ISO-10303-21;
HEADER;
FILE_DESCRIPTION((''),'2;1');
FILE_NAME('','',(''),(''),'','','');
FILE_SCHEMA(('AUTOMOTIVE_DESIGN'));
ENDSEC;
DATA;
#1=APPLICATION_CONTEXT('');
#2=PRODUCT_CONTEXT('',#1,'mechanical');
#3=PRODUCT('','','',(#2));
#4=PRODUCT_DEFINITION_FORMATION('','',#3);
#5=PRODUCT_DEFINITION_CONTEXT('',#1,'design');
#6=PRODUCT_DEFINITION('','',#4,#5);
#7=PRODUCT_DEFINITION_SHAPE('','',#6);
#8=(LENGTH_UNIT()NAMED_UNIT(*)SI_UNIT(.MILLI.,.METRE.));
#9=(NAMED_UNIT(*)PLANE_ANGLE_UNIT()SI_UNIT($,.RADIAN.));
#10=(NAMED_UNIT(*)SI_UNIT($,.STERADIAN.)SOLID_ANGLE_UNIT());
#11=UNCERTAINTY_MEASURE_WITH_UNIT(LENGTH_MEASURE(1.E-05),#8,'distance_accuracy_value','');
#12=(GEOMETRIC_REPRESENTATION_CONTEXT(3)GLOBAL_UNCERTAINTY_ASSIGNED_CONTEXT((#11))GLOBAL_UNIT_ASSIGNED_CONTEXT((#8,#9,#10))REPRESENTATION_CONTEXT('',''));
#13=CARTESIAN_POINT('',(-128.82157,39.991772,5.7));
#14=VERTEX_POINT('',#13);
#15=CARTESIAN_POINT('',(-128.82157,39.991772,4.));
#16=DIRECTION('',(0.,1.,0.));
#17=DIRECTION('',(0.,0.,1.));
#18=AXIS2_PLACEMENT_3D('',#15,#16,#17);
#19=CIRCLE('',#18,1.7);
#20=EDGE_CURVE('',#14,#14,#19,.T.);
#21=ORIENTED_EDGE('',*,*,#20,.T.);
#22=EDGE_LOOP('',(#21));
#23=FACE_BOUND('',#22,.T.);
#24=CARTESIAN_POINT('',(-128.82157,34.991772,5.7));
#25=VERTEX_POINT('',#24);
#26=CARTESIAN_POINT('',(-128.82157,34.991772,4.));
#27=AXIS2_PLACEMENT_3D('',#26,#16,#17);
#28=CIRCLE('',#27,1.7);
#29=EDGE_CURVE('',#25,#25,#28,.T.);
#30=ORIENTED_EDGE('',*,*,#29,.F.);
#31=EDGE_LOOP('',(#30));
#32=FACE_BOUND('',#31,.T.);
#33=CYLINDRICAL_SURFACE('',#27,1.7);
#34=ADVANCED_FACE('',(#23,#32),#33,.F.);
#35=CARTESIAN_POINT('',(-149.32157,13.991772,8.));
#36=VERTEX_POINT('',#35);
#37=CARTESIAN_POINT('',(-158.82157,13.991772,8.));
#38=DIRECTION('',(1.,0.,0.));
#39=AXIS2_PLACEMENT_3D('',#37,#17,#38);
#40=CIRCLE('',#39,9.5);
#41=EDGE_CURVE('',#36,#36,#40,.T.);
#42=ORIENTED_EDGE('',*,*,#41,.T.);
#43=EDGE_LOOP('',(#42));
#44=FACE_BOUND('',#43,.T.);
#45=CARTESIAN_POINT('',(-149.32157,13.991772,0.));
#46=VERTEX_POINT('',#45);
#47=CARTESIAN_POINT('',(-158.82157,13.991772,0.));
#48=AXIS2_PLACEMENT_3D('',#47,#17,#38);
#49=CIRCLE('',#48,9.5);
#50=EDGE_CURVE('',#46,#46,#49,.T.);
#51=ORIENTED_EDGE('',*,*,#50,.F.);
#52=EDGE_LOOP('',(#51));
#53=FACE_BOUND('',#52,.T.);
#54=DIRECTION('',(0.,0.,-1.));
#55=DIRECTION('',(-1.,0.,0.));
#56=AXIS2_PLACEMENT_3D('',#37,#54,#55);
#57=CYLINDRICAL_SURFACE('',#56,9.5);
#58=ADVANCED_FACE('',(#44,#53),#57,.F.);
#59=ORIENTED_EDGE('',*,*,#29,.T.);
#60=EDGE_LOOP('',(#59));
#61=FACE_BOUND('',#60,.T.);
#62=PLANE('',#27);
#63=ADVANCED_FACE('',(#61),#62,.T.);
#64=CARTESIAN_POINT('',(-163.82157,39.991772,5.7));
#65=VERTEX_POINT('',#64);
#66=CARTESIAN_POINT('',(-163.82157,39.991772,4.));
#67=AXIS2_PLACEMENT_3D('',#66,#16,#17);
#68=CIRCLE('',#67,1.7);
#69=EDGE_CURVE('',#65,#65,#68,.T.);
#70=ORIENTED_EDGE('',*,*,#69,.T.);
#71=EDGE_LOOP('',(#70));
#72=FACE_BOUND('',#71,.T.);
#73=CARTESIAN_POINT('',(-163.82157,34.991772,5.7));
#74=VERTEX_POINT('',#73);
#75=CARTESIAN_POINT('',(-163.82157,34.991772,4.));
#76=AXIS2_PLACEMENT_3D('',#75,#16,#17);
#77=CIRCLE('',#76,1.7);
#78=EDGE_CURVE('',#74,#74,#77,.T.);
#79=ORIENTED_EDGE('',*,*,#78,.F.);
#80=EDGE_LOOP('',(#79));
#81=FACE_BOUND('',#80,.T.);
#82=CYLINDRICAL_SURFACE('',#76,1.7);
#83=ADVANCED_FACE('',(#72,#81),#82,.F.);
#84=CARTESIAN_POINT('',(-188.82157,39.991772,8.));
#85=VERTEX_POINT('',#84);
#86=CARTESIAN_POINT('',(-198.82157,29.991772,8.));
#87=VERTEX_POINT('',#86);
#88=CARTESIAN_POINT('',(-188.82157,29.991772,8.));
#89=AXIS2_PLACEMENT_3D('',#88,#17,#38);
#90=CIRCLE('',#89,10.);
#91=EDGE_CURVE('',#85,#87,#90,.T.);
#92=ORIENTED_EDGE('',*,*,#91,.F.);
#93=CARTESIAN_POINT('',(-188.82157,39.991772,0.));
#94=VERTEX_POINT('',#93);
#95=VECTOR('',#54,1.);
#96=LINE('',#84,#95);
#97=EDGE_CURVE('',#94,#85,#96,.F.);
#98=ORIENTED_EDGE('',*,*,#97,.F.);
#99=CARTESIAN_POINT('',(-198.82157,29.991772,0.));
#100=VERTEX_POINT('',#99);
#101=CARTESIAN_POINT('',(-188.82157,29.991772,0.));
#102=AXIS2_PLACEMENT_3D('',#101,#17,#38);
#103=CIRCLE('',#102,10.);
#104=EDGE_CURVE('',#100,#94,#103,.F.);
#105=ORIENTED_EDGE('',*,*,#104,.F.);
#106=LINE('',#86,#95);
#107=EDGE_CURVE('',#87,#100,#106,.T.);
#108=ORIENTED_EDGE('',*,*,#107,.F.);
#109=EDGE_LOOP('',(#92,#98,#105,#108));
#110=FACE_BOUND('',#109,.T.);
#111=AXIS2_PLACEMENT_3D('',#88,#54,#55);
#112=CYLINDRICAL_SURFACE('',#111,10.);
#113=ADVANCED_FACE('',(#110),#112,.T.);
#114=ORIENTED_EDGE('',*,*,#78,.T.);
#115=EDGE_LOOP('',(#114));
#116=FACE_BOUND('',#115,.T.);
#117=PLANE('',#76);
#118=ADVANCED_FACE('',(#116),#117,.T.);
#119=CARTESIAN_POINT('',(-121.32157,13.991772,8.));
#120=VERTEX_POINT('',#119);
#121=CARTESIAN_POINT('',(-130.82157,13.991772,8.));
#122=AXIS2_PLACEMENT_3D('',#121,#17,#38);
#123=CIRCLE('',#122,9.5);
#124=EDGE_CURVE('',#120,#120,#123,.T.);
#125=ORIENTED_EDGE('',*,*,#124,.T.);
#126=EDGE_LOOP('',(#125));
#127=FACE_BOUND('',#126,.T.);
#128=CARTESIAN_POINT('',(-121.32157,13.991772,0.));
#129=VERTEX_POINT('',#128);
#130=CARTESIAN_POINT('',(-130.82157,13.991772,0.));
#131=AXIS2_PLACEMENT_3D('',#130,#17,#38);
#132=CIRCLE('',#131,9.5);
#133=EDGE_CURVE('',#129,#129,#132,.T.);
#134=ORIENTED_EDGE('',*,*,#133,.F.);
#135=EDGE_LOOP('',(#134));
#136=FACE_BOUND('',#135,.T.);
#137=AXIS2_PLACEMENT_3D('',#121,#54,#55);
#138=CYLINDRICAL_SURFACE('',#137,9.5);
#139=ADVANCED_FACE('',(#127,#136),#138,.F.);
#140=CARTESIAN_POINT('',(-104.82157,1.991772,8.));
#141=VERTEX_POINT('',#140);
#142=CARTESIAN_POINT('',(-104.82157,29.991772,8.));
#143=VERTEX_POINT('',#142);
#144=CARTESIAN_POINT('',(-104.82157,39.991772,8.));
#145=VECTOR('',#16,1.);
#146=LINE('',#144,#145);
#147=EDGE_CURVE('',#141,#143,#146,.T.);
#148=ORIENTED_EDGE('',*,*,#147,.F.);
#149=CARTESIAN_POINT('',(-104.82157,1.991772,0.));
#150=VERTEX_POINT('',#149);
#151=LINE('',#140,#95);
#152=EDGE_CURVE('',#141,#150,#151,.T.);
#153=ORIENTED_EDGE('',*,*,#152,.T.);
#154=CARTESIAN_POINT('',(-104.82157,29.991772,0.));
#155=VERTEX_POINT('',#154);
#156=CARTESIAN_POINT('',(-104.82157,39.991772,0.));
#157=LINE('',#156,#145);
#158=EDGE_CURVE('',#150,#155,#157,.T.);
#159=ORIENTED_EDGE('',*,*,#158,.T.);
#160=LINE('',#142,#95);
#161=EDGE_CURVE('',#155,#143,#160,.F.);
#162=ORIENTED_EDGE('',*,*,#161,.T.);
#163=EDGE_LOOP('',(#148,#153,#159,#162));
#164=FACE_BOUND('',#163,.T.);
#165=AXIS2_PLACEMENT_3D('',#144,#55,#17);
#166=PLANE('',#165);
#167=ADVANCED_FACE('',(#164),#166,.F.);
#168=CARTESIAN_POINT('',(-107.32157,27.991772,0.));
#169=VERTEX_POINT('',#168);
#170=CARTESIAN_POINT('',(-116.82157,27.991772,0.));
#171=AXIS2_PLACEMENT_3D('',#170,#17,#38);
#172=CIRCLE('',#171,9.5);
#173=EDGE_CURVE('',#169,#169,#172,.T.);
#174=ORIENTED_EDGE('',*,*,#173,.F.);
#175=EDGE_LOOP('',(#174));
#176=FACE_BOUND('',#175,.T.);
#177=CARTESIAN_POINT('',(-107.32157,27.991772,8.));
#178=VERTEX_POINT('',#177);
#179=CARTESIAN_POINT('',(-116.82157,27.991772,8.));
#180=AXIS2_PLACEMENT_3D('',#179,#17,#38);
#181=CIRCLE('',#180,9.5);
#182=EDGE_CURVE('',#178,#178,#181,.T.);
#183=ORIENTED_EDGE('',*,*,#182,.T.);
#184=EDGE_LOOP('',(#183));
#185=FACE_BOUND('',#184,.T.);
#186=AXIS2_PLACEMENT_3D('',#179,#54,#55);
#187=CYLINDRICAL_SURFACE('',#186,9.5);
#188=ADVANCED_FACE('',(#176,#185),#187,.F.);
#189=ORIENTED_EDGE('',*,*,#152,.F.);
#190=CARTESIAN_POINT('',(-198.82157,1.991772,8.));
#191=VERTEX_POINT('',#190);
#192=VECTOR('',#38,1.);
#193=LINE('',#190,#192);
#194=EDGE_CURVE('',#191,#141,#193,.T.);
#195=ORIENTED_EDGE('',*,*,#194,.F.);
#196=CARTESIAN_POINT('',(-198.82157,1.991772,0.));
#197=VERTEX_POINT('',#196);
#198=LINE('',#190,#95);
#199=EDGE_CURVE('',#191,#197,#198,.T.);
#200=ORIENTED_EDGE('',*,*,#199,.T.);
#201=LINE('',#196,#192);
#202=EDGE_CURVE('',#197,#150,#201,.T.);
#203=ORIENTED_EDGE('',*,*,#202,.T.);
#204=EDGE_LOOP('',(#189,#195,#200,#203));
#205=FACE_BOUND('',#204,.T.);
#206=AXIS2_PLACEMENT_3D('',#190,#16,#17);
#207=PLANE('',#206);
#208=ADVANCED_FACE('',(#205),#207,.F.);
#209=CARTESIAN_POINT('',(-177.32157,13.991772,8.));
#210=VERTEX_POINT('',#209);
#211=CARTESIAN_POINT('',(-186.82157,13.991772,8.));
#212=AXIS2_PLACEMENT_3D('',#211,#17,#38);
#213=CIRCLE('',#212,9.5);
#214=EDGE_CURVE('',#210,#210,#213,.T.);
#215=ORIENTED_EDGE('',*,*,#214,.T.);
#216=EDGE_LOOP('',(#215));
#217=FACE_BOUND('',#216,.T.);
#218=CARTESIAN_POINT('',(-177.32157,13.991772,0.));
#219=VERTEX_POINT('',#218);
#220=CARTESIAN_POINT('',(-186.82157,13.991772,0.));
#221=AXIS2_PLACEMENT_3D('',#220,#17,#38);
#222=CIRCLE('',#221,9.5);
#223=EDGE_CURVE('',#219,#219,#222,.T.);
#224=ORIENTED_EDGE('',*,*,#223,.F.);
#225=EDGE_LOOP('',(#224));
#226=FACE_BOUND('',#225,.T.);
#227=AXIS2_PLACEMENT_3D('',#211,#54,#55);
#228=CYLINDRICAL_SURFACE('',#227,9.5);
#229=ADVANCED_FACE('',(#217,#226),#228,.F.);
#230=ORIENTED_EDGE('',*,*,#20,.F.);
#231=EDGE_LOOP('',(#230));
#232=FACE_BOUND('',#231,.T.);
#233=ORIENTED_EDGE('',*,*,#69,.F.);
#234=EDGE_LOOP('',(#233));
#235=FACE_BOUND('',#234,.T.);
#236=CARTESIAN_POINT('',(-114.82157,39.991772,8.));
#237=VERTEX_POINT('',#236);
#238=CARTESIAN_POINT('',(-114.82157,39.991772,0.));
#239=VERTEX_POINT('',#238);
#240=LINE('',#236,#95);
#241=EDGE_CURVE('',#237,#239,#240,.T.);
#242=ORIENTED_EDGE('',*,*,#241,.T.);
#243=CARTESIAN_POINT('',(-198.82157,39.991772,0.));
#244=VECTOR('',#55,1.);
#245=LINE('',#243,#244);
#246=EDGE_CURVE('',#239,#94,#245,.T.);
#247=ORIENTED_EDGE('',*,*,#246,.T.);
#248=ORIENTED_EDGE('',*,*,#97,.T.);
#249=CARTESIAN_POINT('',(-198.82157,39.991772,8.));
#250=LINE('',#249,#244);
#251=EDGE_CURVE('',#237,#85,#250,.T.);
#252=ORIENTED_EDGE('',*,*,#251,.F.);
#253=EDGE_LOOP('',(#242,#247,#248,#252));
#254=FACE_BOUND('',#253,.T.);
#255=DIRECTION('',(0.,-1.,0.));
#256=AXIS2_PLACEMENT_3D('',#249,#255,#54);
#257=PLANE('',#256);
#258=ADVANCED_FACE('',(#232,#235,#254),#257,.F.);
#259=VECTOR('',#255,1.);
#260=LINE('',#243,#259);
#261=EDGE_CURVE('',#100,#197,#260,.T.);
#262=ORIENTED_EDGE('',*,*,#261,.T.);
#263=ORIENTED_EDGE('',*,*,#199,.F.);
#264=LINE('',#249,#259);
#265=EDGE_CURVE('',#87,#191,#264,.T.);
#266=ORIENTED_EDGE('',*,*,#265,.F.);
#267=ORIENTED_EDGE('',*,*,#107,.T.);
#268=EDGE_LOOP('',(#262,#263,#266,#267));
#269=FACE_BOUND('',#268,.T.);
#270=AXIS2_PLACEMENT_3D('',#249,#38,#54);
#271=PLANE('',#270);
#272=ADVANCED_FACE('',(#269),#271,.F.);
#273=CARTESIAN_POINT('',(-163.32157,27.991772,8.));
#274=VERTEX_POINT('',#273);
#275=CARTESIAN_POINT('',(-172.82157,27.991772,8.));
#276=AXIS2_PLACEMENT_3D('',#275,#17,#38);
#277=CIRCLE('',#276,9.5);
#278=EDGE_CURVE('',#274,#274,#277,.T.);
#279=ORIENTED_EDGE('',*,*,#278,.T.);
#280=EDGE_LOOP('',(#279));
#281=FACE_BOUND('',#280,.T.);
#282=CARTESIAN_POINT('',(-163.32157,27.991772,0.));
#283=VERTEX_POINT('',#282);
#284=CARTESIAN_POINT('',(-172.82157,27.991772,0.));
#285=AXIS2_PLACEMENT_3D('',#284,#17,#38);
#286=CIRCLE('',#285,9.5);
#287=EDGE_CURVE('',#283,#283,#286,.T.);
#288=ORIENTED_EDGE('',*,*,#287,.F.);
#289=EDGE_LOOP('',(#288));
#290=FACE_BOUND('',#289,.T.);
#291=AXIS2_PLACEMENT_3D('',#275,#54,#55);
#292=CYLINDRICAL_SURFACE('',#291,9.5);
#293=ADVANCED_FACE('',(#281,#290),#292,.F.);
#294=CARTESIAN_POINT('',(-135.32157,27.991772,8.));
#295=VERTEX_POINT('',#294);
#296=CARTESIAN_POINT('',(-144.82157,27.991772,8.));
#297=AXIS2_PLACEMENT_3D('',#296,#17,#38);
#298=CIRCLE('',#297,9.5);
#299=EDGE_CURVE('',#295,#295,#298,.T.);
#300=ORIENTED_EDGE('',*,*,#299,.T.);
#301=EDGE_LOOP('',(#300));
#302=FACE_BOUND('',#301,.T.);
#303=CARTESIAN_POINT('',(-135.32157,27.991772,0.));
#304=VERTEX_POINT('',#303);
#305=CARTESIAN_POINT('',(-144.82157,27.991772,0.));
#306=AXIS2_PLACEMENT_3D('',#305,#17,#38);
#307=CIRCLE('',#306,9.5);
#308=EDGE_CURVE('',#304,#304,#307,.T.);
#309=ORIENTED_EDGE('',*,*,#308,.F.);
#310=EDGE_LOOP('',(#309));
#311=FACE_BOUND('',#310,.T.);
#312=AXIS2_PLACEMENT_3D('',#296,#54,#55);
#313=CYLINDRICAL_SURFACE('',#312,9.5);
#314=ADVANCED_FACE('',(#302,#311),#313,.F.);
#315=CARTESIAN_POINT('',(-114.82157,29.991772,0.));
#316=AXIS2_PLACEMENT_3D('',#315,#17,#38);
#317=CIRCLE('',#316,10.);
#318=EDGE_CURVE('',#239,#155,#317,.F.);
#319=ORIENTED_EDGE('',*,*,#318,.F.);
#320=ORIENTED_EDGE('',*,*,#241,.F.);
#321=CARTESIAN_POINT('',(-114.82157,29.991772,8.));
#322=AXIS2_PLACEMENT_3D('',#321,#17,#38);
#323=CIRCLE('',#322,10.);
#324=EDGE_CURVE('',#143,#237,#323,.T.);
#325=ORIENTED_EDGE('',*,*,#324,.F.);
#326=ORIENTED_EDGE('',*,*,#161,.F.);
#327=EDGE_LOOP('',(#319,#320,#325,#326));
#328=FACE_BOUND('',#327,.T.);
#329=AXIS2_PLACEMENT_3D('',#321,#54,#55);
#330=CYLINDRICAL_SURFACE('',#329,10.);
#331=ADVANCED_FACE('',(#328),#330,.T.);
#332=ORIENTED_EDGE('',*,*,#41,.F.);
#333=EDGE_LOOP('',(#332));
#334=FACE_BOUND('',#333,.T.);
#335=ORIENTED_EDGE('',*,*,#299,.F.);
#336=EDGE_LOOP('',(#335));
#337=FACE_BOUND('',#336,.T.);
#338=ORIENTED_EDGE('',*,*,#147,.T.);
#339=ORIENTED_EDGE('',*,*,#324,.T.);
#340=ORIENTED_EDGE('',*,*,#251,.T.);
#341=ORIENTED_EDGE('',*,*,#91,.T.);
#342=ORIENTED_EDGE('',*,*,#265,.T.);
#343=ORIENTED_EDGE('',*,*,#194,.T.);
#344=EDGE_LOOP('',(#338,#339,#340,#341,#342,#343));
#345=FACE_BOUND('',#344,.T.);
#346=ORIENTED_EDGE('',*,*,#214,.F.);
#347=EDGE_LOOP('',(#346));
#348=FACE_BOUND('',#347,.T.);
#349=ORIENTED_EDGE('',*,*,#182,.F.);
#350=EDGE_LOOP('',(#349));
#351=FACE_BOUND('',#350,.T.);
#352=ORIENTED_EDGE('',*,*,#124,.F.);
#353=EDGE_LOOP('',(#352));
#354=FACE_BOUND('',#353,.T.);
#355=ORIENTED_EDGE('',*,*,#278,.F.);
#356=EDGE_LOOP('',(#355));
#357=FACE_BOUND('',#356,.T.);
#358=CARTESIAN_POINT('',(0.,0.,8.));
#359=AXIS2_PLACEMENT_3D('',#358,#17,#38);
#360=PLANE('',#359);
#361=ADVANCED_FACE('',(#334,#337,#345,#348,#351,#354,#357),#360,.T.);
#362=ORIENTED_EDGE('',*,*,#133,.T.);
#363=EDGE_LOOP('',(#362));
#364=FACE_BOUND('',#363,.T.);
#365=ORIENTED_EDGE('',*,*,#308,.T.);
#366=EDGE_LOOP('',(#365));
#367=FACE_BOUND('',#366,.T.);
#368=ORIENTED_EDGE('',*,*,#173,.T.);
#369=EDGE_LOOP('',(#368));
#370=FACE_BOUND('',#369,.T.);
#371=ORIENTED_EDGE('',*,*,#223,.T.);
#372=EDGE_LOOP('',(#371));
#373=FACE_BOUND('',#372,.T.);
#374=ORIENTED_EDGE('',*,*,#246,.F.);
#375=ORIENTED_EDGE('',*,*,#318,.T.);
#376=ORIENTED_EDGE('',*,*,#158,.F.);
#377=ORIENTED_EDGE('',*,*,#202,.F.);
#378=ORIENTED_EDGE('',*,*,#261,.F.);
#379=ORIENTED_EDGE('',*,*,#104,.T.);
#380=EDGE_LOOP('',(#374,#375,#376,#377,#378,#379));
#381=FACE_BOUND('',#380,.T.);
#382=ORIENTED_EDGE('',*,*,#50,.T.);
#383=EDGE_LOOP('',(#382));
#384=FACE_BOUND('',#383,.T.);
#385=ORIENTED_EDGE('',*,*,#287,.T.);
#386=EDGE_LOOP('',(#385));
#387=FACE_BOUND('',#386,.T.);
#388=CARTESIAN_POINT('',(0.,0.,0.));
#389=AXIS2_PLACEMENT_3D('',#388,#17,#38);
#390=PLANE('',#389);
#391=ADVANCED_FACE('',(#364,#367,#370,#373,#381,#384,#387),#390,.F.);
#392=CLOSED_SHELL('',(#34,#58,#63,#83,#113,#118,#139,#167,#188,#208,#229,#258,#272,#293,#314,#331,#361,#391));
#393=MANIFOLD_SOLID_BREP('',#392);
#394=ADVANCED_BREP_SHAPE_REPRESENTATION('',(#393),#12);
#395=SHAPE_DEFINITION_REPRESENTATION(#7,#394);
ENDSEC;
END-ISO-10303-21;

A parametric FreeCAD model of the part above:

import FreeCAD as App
import Part
import Sketcher

V = App.Vector
Q = App.Units.Quantity


def edges_at(feature, points):
    """Names of the edges that pass closest to the given points."""
    edges = feature.Shape.Edges
    near = lambda p: min(range(len(edges)), key=lambda i: edges[i].distToShape(Part.Vertex(*p))[0])
    return sorted({f"Edge{near(p) + 1}" for p in points})


def add_polygon(sketch, points):
    """Adds a closed chain of lines whose ends are joined by coincident constraints."""
    first, n = sketch.GeometryCount, len(points)
    for a, b in zip(points, points[1:] + points[:1]):
        sketch.addGeometry(Part.LineSegment(App.Vector(*a, 0), App.Vector(*b, 0)), False)
    for i in range(n):
        sketch.addConstraint(Sketcher.Constraint("Coincident", first + i, 2, first + (i + 1) % n, 1))

doc = App.newDocument("Part")
body = doc.addObject("PartDesign::Body", "Body")

sketch1 = body.newObject("Sketcher::SketchObject", "Sketch")
sketch1.AttachmentSupport = (doc.getObject("XY_Plane"), [""])
sketch1.MapMode = "FlatFace"
add_polygon(sketch1, [(-199, 40), (-199, 2), (-105, 2), (-105, 40)])
sketch1.addGeometry(Part.Circle(V(-187, 14, 0), V(0, 0, 1), 10), False)
sketch1.addGeometry(Part.Circle(V(-159, 14, 0), V(0, 0, 1), 10), False)
sketch1.addGeometry(Part.Circle(V(-131, 14, 0), V(0, 0, 1), 10), False)
sketch1.addGeometry(Part.Circle(V(-173, 28, 0), V(0, 0, 1), 10), False)
sketch1.addGeometry(Part.Circle(V(-145, 28, 0), V(0, 0, 1), 10), False)
sketch1.addGeometry(Part.Circle(V(-117, 28, 0), V(0, 0, 1), 10), False)
sketch1.addConstraint([
    Sketcher.Constraint("Vertical", 0),
    Sketcher.Constraint("Horizontal", 1),
    Sketcher.Constraint("Vertical", 2),
    Sketcher.Constraint("Horizontal", 3),
    Sketcher.Constraint("Equal", 4, 5),
    Sketcher.Constraint("Equal", 5, 6),
    Sketcher.Constraint("Equal", 6, 7),
    Sketcher.Constraint("Equal", 7, 8),
    Sketcher.Constraint("Equal", 8, 9),
    Sketcher.Constraint("Horizontal", 4, 3, 5, 3),
    Sketcher.Constraint("Horizontal", 5, 3, 6, 3),
    Sketcher.Constraint("Horizontal", 7, 3, 8, 3),
    Sketcher.Constraint("Horizontal", 8, 3, 9, 3),
    Sketcher.Constraint("Diameter", 4, Q("19 mm")),
    Sketcher.Constraint("DistanceX", 1, 1, 1, 2, Q("94 mm")),
    Sketcher.Constraint("DistanceY", 0, 2, 0, 1, Q("38 mm")),
    Sketcher.Constraint("DistanceX", 4, 3, 5, 3, Q("28 mm")),
    Sketcher.Constraint("DistanceX", 5, 3, 6, 3, Q("28 mm")),
    Sketcher.Constraint("DistanceX", 4, 3, 7, 3, Q("14 mm")),
    Sketcher.Constraint("DistanceY", 4, 3, 7, 3, Q("14 mm")),
    Sketcher.Constraint("DistanceX", 5, 3, 8, 3, Q("14 mm")),
    Sketcher.Constraint("DistanceX", 6, 3, 9, 3, Q("14 mm")),
    Sketcher.Constraint("DistanceX", 0, 2, 4, 3, Q("12 mm")),
    Sketcher.Constraint("DistanceY", 0, 2, 4, 3, Q("12 mm")),
    Sketcher.Constraint("DistanceX", 4, 3, -1, 1, Q("186.82157 mm")),
    Sketcher.Constraint("DistanceY", -1, 1, 4, 3, Q("13.991772 mm")),
])
pad1 = body.newObject("PartDesign::Pad", "Pad")
pad1.Profile = sketch1
pad1.Length = 8
doc.recompute()

fillet = body.newObject("PartDesign::Fillet", "Fillet")
fillet.Base = (pad1, edges_at(pad1, [(-198.822, 39.992, 4), (-104.822, 39.992, 4)]))
fillet.Radius = 10

sketch2 = body.newObject("Sketcher::SketchObject", "Sketch001")
sketch2.AttachmentSupport = (doc.getObject("XZ_Plane"), [""])
sketch2.MapMode = "FlatFace"
sketch2.AttachmentOffset = App.Placement(V(0, 0, -39.991772), App.Rotation())
sketch2.addGeometry([
    Part.Circle(V(-163.8, 4, 0), V(0, 0, 1), 1.7),
    Part.Circle(V(-128.8, 4, 0), V(0, 0, 1), 1.7),
], False)
sketch2.addConstraint([
    Sketcher.Constraint("Equal", 0, 1),
    Sketcher.Constraint("Horizontal", 0, 3, 1, 3),
    Sketcher.Constraint("Diameter", 0, Q("3.4 mm")),
    Sketcher.Constraint("DistanceY", -1, 1, 0, 3, Q("4 mm")),
    Sketcher.Constraint("DistanceX", 0, 3, 1, 3, Q("35 mm")),
    Sketcher.Constraint("DistanceX", 0, 3, -1, 1, Q("163.82157 mm")),
])
pocket1 = body.newObject("PartDesign::Pocket", "Pocket")
pocket1.Profile = sketch2
pocket1.Length = 5
pocket1.Reversed = True

doc.recompute()
